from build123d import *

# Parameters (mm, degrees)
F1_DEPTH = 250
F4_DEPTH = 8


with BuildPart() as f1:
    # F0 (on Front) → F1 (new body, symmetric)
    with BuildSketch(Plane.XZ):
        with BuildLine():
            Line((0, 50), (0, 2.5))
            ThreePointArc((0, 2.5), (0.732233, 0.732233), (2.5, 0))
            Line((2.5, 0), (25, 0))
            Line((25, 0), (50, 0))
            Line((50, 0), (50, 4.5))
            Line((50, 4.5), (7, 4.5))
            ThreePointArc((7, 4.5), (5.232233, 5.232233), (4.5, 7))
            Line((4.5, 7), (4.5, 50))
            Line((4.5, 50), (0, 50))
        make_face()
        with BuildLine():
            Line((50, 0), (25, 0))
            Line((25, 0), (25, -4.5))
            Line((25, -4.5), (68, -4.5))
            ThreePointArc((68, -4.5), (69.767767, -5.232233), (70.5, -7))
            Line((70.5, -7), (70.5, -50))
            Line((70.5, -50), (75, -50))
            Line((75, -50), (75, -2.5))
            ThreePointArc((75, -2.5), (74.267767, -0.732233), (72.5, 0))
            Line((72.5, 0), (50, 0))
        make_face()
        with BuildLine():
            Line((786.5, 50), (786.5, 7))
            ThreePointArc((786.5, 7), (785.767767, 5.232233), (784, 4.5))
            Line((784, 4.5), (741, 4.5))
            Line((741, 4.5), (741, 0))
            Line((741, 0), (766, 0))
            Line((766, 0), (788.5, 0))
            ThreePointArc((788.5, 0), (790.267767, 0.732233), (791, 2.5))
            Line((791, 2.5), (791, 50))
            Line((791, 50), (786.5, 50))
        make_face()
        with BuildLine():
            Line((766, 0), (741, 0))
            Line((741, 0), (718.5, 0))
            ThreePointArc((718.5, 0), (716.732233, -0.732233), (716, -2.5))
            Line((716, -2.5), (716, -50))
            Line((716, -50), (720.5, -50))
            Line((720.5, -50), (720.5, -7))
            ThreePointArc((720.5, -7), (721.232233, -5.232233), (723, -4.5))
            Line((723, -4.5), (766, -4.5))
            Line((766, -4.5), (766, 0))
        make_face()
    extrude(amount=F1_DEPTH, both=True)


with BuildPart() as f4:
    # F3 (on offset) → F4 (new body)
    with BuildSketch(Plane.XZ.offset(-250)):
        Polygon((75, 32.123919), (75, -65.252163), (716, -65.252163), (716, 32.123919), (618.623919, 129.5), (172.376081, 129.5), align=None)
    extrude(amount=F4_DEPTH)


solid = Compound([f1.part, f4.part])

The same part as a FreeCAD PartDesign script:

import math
import FreeCAD as App
import Part
import Sketcher
from FreeCAD import Vector

doc = App.newDocument("Part")
params = doc.addObject("Spreadsheet::Sheet", "Params")
for row, (alias, value) in enumerate([
    ("sketch1_radius", "2.5 mm"),
    ("sketch1_width", "43 mm"),
    ("sketch1_width2", "22.5 mm"),
    ("sketch1_width3", "4.5 mm"),
    ("pad1_length", "500 mm"),
    ("sketch2_width", "641 mm"),
    ("pad2_length", "8 mm"),
], start=1):
    params.set(f"A{row}", alias)
    params.set(f"B{row}", "=" + value)
    params.setAlias(f"B{row}", alias)

body = doc.addObject("PartDesign::Body", "Body")
body.AllowCompound = True

# Sketch on XZ plane
sketch1 = body.newObject("Sketcher::SketchObject", "Sketch")
sketch1.AttachmentSupport = (doc.getObject("XZ_Plane"), [""])
sketch1.MapMode = "FlatFace"
sketch1.addGeometry(Part.LineSegment(Vector(0, 50, 0), Vector(0, 2.5, 0)), False)
sketch1.addGeometry(Part.ArcOfCircle(Part.Circle(Vector(2.5, 2.5, 0), Vector(0, 0, 1), 2.5), math.radians(179.999996), math.radians(270.000004)), False)
sketch1.addGeometry(Part.LineSegment(Vector(2.5, 0, 0), Vector(25, 0, 0)), False)
sketch1.addGeometry(Part.LineSegment(Vector(25, 0, 0), Vector(25, -4.5, 0)), False)
sketch1.addGeometry(Part.LineSegment(Vector(25, -4.5, 0), Vector(68, -4.5, 0)), False)
sketch1.addGeometry(Part.ArcOfCircle(Part.Circle(Vector(68, -7, 0), Vector(0, 0, 1), 2.5), math.radians(-0.000004), math.radians(90.000004)), False)
sketch1.addGeometry(Part.LineSegment(Vector(70.5, -7, 0), Vector(70.5, -50, 0)), False)
sketch1.addGeometry(Part.LineSegment(Vector(70.5, -50, 0), Vector(75, -50, 0)), False)
sketch1.addGeometry(Part.LineSegment(Vector(75, -50, 0), Vector(75, -2.5, 0)), False)
sketch1.addGeometry(Part.ArcOfCircle(Part.Circle(Vector(72.5, -2.5, 0), Vector(0, 0, 1), 2.5), math.radians(-0.000004), math.radians(90.000004)), False)
sketch1.addGeometry(Part.LineSegment(Vector(72.5, 0, 0), Vector(50, 0, 0)), False)
sketch1.addGeometry(Part.LineSegment(Vector(50, 0, 0), Vector(50, 4.5, 0)), False)
sketch1.addGeometry(Part.LineSegment(Vector(50, 4.5, 0), Vector(7, 4.5, 0)), False)
sketch1.addGeometry(Part.ArcOfCircle(Part.Circle(Vector(7, 7, 0), Vector(0, 0, 1), 2.5), math.radians(179.999996), math.radians(270.000004)), False)
sketch1.addGeometry(Part.LineSegment(Vector(4.5, 7, 0), Vector(4.5, 50, 0)), False)
sketch1.addGeometry(Part.LineSegment(Vector(4.5, 50, 0), Vector(0, 50, 0)), False)
sketch1.addGeometry(Part.LineSegment(Vector(786.5, 50, 0), Vector(786.5, 7, 0)), False)
sketch1.addGeometry(Part.ArcOfCircle(Part.Circle(Vector(784, 7, 0), Vector(0, 0, 1), 2.5), math.radians(-90.000004), math.radians(0.000004)), False)
sketch1.addGeometry(Part.LineSegment(Vector(784, 4.5, 0), Vector(741, 4.5, 0)), False)
sketch1.addGeometry(Part.LineSegment(Vector(741, 4.5, 0), Vector(741, 0, 0)), False)
sketch1.addGeometry(Part.LineSegment(Vector(741, 0, 0), Vector(718.5, 0, 0)), False)
sketch1.addGeometry(Part.ArcOfCircle(Part.Circle(Vector(718.5, -2.5, 0), Vector(0, 0, 1), 2.5), math.radians(89.999996), math.radians(180.000004)), False)
sketch1.addGeometry(Part.LineSegment(Vector(716, -2.5, 0), Vector(716, -50, 0)), False)
sketch1.addGeometry(Part.LineSegment(Vector(716, -50, 0), Vector(720.5, -50, 0)), False)
sketch1.addGeometry(Part.LineSegment(Vector(720.5, -50, 0), Vector(720.5, -7, 0)), False)
sketch1.addGeometry(Part.ArcOfCircle(Part.Circle(Vector(723, -7, 0), Vector(0, 0, 1), 2.5), math.radians(89.999996), math.radians(180.000004)), False)
sketch1.addGeometry(Part.LineSegment(Vector(723, -4.5, 0), Vector(766, -4.5, 0)), False)
sketch1.addGeometry(Part.LineSegment(Vector(766, -4.5, 0), Vector(766, 0, 0)), False)
sketch1.addGeometry(Part.LineSegment(Vector(766, 0, 0), Vector(788.5, 0, 0)), False)
sketch1.addGeometry(Part.ArcOfCircle(Part.Circle(Vector(788.5, 2.5, 0), Vector(0, 0, 1), 2.5), math.radians(-90.000004), math.radians(0.000004)), False)
sketch1.addGeometry(Part.LineSegment(Vector(791, 2.5, 0), Vector(791, 50, 0)), False)
sketch1.addGeometry(Part.LineSegment(Vector(791, 50, 0), Vector(786.5, 50, 0)), False)
sketch1.addConstraint(Sketcher.Constraint("Tangent", 0, 2, 1, 1))
sketch1.addConstraint(Sketcher.Constraint("Tangent", 1, 2, 2, 1))
sketch1.addConstraint(Sketcher.Constraint("Coincident", 2, 2, 3, 1))
sketch1.addConstraint(Sketcher.Constraint("Coincident", 3, 2, 4, 1))
sketch1.addConstraint(Sketcher.Constraint("Tangent", 4, 2, 5, 2))
sketch1.addConstraint(Sketcher.Constraint("Tangent", 5, 1, 6, 1))
sketch1.addConstraint(Sketcher.Constraint("Coincident", 6, 2, 7, 1))
sketch1.addConstraint(Sketcher.Constraint("Coincident", 7, 2, 8, 1))
sketch1.addConstraint(Sketcher.Constraint("Tangent", 8, 2, 9, 1))
sketch1.addConstraint(Sketcher.Constraint("Tangent", 9, 2, 10, 1))
sketch1.addConstraint(Sketcher.Constraint("Coincident", 10, 2, 11, 1))
sketch1.addConstraint(Sketcher.Constraint("Coincident", 11, 2, 12, 1))
sketch1.addConstraint(Sketcher.Constraint("Tangent", 12, 2, 13, 2))
sketch1.addConstraint(Sketcher.Constraint("Tangent", 13, 1, 14, 1))
sketch1.addConstraint(Sketcher.Constraint("Coincident", 14, 2, 15, 1))
sketch1.addConstraint(Sketcher.Constraint("Coincident", 15, 2, 0, 1))
sketch1.addConstraint(Sketcher.Constraint("Tangent", 16, 2, 17, 2))
sketch1.addConstraint(Sketcher.Constraint("Tangent", 17, 1, 18, 1))
sketch1.addConstraint(Sketcher.Constraint("Coincident", 18, 2, 19, 1))
sketch1.addConstraint(Sketcher.Constraint("Coincident", 19, 2, 20, 1))
sketch1.addConstraint(Sketcher.Constraint("Tangent", 20, 2, 21, 1))
sketch1.addConstraint(Sketcher.Constraint("Tangent", 21, 2, 22, 1))
sketch1.addConstraint(Sketcher.Constraint("Coincident", 22, 2, 23, 1))
sketch1.addConstraint(Sketcher.Constraint("Coincident", 23, 2, 24, 1))
sketch1.addConstraint(Sketcher.Constraint("Tangent", 24, 2, 25, 2))
sketch1.addConstraint(Sketcher.Constraint("Tangent", 25, 1, 26, 1))
sketch1.addConstraint(Sketcher.Constraint("Coincident", 26, 2, 27, 1))
sketch1.addConstraint(Sketcher.Constraint("Coincident", 27, 2, 28, 1))
sketch1.addConstraint(Sketcher.Constraint("Tangent", 28, 2, 29, 1))
sketch1.addConstraint(Sketcher.Constraint("Tangent", 29, 2, 30, 1))
sketch1.addConstraint(Sketcher.Constraint("Coincident", 30, 2, 31, 1))
sketch1.addConstraint(Sketcher.Constraint("Coincident", 31, 2, 16, 1))
sketch1.addConstraint(Sketcher.Constraint("Vertical", 0))
sketch1.addConstraint(Sketcher.Constraint("Horizontal", 2))
sketch1.addConstraint(Sketcher.Constraint("Vertical", 3))
sketch1.addConstraint(Sketcher.Constraint("Horizontal", 4))
sketch1.addConstraint(Sketcher.Constraint("Vertical", 6))
sketch1.addConstraint(Sketcher.Constraint("Horizontal", 7))
sketch1.addConstraint(Sketcher.Constraint("Vertical", 8))
sketch1.addConstraint(Sketcher.Constraint("Horizontal", 10))
sketch1.addConstraint(Sketcher.Constraint("Vertical", 11))
sketch1.addConstraint(Sketcher.Constraint("Horizontal", 12))
sketch1.addConstraint(Sketcher.Constraint("Vertical", 14))
sketch1.addConstraint(Sketcher.Constraint("Horizontal", 15))
sketch1.addConstraint(Sketcher.Constraint("Vertical", 16))
sketch1.addConstraint(Sketcher.Constraint("Horizontal", 18))
sketch1.addConstraint(Sketcher.Constraint("Vertical", 19))
sketch1.addConstraint(Sketcher.Constraint("Horizontal", 20))
sketch1.addConstraint(Sketcher.Constraint("Vertical", 22))
sketch1.addConstraint(Sketcher.Constraint("Horizontal", 23))
sketch1.addConstraint(Sketcher.Constraint("Vertical", 24))
sketch1.addConstraint(Sketcher.Constraint("Horizontal", 26))
sketch1.addConstraint(Sketcher.Constraint("Vertical", 27))
sketch1.addConstraint(Sketcher.Constraint("Horizontal", 28))
sketch1.addConstraint(Sketcher.Constraint("Vertical", 30))
sketch1.addConstraint(Sketcher.Constraint("Horizontal", 31))
sketch1.addConstraint(Sketcher.Constraint("Equal", 1, 5))
sketch1.addConstraint(Sketcher.Constraint("Equal", 5, 9))
sketch1.addConstraint(Sketcher.Constraint("Equal", 9, 13))
sketch1.addConstraint(Sketcher.Constraint("Equal", 13, 17))
sketch1.addConstraint(Sketcher.Constraint("Equal", 17, 21))
sketch1.addConstraint(Sketcher.Constraint("Equal", 21, 25))
sketch1.addConstraint(Sketcher.Constraint("Equal", 25, 29))
sketch1.addConstraint(Sketcher.Constraint("PointOnObject", 0, 2, -2))
sketch1.addConstraint(Sketcher.Constraint("PointOnObject", 1, 2, -1))
sketch1.addConstraint(Sketcher.Constraint("PointOnObject", 9, 2, -1))
sketch1.addConstraint(Sketcher.Constraint("PointOnObject", 19, 2, -1))
sketch1.addConstraint(Sketcher.Constraint("PointOnObject", 27, 2, -1))
sketch1.addConstraint(Sketcher.Constraint("Horizontal", 13, 3, 17, 3))
sketch1.addConstraint(Sketcher.Constraint("Horizontal", 5, 3, 25, 3))
sketch1.addConstraint(Sketcher.Constraint("Horizontal", 7, 2, 22, 2))
sketch1.addConstraint(Sketcher.Constraint("Horizontal", 15, 2, 30, 2))
sketch1.addConstraint(Sketcher.Constraint("Equal", 2, 10))
sketch1.addConstraint(Sketcher.Constraint("Equal", 4, 12))
sketch1.addConstraint(Sketcher.Constraint("Equal", 12, 18))
sketch1.addConstraint(Sketcher.Constraint("Equal", 10, 20))
sketch1.addConstraint(Sketcher.Constraint("Equal", 15, 23))
sketch1.addConstraint(Sketcher.Constraint("Equal", 18, 26))
sketch1.addConstraint(Sketcher.Constraint("Equal", 20, 28))
sketch1.addConstraint(Sketcher.Constraint("Equal", 31, 3))
sketch1.addConstraint(Sketcher.Constraint("Equal", 26, 6))
sketch1.addConstraint(Sketcher.Constraint("Equal", 0, 8))
sketch1.addConstraint(Sketcher.Constraint("Equal", 3, 11))
sketch1.addConstraint(Sketcher.Constraint("Radius", 1, 2.5))
sketch1.addConstraint(Sketcher.Constraint("DistanceX", 4, 1, 4, 2, 43.0))
sketch1.addConstraint(Sketcher.Constraint("DistanceX", 2, 1, 2, 2, 22.5))
sketch1.addConstraint(Sketcher.Constraint("DistanceX", 7, 1, 7, 2, 4.5))
sketch1.addConstraint(Sketcher.Constraint("DistanceX", -1, 1, 17, 3, 784.0))
sketch1.setExpression("Constraints[83]", "Params.sketch1_radius")
sketch1.setExpression("Constraints[84]", "Params.sketch1_width")
sketch1.setExpression("Constraints[85]", "Params.sketch1_width2")
sketch1.setExpression("Constraints[86]", "Params.sketch1_width3")
pad1 = body.newObject("PartDesign::Pad", "Pad")
pad1.Profile = sketch1
pad1.setExpression("Length", "Params.pad1_length")
pad1.Midplane = True
body2 = doc.addObject("PartDesign::Body", "Body001")

# Sketch on XZ plane
sketch2 = body2.newObject("Sketcher::SketchObject", "Sketch001")
sketch2.AttachmentSupport = (doc.getObject("XZ_Plane001"), [""])
sketch2.MapMode = "FlatFace"
sketch2.AttachmentOffset = App.Placement(Vector(0, 0, -250), App.Rotation())
sketch2.addGeometry(Part.LineSegment(Vector(75, 32.123919, 0), Vector(75, -65.252163, 0)), False)
sketch2.addGeometry(Part.LineSegment(Vector(75, -65.252163, 0), Vector(716, -65.252163, 0)), False)
sketch2.addGeometry(Part.LineSegment(Vector(716, -65.252163, 0), Vector(716, 32.123919, 0)), False)
sketch2.addGeometry(Part.LineSegment(Vector(716, 32.123919, 0), Vector(618.623919, 129.5, 0)), False)
sketch2.addGeometry(Part.LineSegment(Vector(618.623919, 129.5, 0), Vector(172.376081, 129.5, 0)), False)
sketch2.addGeometry(Part.LineSegment(Vector(172.376081, 129.5, 0), Vector(75, 32.123919, 0)), False)
sketch2.addConstraint(Sketcher.Constraint("Coincident", 0, 2, 1, 1))
sketch2.addConstraint(Sketcher.Constraint("Coincident", 1, 2, 2, 1))
sketch2.addConstraint(Sketcher.Constraint("Coincident", 2, 2, 3, 1))
sketch2.addConstraint(Sketcher.Constraint("Coincident", 3, 2, 4, 1))
sketch2.addConstraint(Sketcher.Constraint("Coincident", 4, 2, 5, 1))
sketch2.addConstraint(Sketcher.Constraint("Coincident", 5, 2, 0, 1))
sketch2.addConstraint(Sketcher.Constraint("Vertical", 0))
sketch2.addConstraint(Sketcher.Constraint("Horizontal", 1))
sketch2.addConstraint(Sketcher.Constraint("Vertical", 2))
sketch2.addConstraint(Sketcher.Constraint("Horizontal", 4))
sketch2.addConstraint(Sketcher.Constraint("Perpendicular", 3, 5))
sketch2.addConstraint(Sketcher.Constraint("Horizontal", 2, 2, 5, 2))
sketch2.addConstraint(Sketcher.Constraint("Equal", 3, 5))
sketch2.addConstraint(Sketcher.Constraint("DistanceX", 1, 1, 1, 2, 641.0))
sketch2.addConstraint(Sketcher.Constraint("DistanceX", -1, 1, 0, 2, 75.0))
sketch2.addConstraint(Sketcher.Constraint("DistanceY", -1, 1, 3, 2, 129.5))
sketch2.addConstraint(Sketcher.Constraint("DistanceX", 4, 2, 4, 1, 446.247838))
sketch2.addConstraint(Sketcher.Constraint("DistanceY", 0, 2, 0, 1, 97.376082))
sketch2.setExpression("Constraints[13]", "Params.sketch2_width")
pad2 = body2.newObject("PartDesign::Pad", "Pad001")
pad2.Profile = sketch2
pad2.setExpression("Length", "Params.pad2_length")

doc.recompute()
